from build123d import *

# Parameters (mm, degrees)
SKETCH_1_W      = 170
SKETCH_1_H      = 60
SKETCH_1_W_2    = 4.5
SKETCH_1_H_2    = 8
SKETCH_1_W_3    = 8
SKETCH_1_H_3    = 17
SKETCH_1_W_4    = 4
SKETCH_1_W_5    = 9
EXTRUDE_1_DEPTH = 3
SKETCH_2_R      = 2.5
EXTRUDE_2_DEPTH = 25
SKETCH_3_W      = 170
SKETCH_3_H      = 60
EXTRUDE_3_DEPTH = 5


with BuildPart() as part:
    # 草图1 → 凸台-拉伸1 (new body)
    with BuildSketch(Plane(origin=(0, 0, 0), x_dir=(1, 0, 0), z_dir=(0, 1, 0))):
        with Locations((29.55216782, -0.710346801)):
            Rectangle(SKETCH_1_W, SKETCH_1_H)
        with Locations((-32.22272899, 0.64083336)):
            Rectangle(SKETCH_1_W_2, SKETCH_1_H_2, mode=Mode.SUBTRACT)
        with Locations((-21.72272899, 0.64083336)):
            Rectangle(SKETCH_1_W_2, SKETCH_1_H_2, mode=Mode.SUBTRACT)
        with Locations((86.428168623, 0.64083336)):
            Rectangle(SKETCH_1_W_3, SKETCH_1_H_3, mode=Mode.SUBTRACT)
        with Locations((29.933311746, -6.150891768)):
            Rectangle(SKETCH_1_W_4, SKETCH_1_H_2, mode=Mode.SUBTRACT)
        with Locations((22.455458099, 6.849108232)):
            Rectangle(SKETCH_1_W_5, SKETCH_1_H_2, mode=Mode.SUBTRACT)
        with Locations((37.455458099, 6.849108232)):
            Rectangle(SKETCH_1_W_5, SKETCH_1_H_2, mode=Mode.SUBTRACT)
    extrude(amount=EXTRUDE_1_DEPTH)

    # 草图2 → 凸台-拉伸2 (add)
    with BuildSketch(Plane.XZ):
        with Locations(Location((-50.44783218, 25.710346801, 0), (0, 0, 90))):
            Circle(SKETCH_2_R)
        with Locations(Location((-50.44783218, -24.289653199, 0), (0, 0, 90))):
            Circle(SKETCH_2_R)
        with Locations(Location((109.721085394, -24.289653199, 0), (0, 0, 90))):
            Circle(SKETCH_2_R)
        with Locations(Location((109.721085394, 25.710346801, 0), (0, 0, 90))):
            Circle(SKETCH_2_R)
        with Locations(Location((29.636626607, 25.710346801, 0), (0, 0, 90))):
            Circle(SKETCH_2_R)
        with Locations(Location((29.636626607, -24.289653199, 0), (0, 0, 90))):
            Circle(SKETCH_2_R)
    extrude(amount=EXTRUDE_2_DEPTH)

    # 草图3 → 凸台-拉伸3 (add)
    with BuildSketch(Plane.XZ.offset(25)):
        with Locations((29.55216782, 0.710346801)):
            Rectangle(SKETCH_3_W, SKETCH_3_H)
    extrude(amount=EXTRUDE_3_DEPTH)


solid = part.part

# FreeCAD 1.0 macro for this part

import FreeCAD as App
import Part
import Sketcher
from FreeCAD import Vector

doc = App.newDocument("Part")
body = doc.addObject("PartDesign::Body", "Body")

# Sketch on XZ plane
sketch1 = body.newObject("Sketcher::SketchObject", "Sketch")
sketch1.AttachmentSupport = (doc.getObject("XZ_Plane"), [""])
sketch1.MapMode = "FlatFace"
sketch1.addGeometry([
    Part.LineSegment(Vector(-55.4, -29.3, 0), Vector(-55.4, 30.7, 0)),  # 0
    Part.LineSegment(Vector(-55.4, 30.7, 0), Vector(114.6, 30.7, 0)),  # 1
    Part.LineSegment(Vector(114.6, 30.7, 0), Vector(114.6, -29.3, 0)),  # 2
    Part.LineSegment(Vector(114.6, -29.3, 0), Vector(-55.4, -29.3, 0)),  # 3
    Part.LineSegment(Vector(31.9, 10.2, 0), Vector(27.9, 10.2, 0)),  # 4
    Part.LineSegment(Vector(27.9, 10.2, 0), Vector(27.9, 2.2, 0)),  # 5
    Part.LineSegment(Vector(27.9, 2.2, 0), Vector(31.9, 2.2, 0)),  # 6
    Part.LineSegment(Vector(31.9, 2.2, 0), Vector(31.9, 10.2, 0)),  # 7
    Part.LineSegment(Vector(-30, 3.4, 0), Vector(-34.5, 3.4, 0)),  # 8
    Part.LineSegment(Vector(-34.5, 3.4, 0), Vector(-34.5, -4.6, 0)),  # 9
    Part.LineSegment(Vector(-34.5, -4.6, 0), Vector(-30, -4.6, 0)),  # 10
    Part.LineSegment(Vector(-30, -4.6, 0), Vector(-30, 3.4, 0)),  # 11
    Part.LineSegment(Vector(-19.5, 3.4, 0), Vector(-24, 3.4, 0)),  # 12
    Part.LineSegment(Vector(-24, 3.4, 0), Vector(-24, -4.6, 0)),  # 13
    Part.LineSegment(Vector(-24, -4.6, 0), Vector(-19.5, -4.6, 0)),  # 14
    Part.LineSegment(Vector(-19.5, -4.6, 0), Vector(-19.5, 3.4, 0)),  # 15
    Part.LineSegment(Vector(27, -2.8, 0), Vector(18, -2.8, 0)),  # 16
    Part.LineSegment(Vector(18, -2.8, 0), Vector(18, -10.8, 0)),  # 17
    Part.LineSegment(Vector(18, -10.8, 0), Vector(27, -10.8, 0)),  # 18
    Part.LineSegment(Vector(27, -10.8, 0), Vector(27, -2.8, 0)),  # 19
    Part.LineSegment(Vector(90.4, 7.9, 0), Vector(82.4, 7.9, 0)),  # 20
    Part.LineSegment(Vector(82.4, 7.9, 0), Vector(82.4, -9.1, 0)),  # 21
    Part.LineSegment(Vector(82.4, -9.1, 0), Vector(90.4, -9.1, 0)),  # 22
    Part.LineSegment(Vector(90.4, -9.1, 0), Vector(90.4, 7.9, 0)),  # 23
    Part.LineSegment(Vector(42, -2.8, 0), Vector(33, -2.8, 0)),  # 24
    Part.LineSegment(Vector(33, -2.8, 0), Vector(33, -10.8, 0)),  # 25
    Part.LineSegment(Vector(33, -10.8, 0), Vector(42, -10.8, 0)),  # 26
    Part.LineSegment(Vector(42, -10.8, 0), Vector(42, -2.8, 0)),  # 27
], False)
sketch1.addConstraint([
    Sketcher.Constraint("Coincident", 0, 2, 1, 1),
    Sketcher.Constraint("Coincident", 1, 2, 2, 1),
    Sketcher.Constraint("Coincident", 2, 2, 3, 1),
    Sketcher.Constraint("Coincident", 3, 2, 0, 1),
    Sketcher.Constraint("Coincident", 4, 2, 5, 1),
    Sketcher.Constraint("Coincident", 5, 2, 6, 1),
    Sketcher.Constraint("Coincident", 6, 2, 7, 1),
    Sketcher.Constraint("Coincident", 7, 2, 4, 1),
    Sketcher.Constraint("Coincident", 8, 2, 9, 1),
    Sketcher.Constraint("Coincident", 9, 2, 10, 1),
    Sketcher.Constraint("Coincident", 10, 2, 11, 1),
    Sketcher.Constraint("Coincident", 11, 2, 8, 1),
    Sketcher.Constraint("Coincident", 12, 2, 13, 1),
    Sketcher.Constraint("Coincident", 13, 2, 14, 1),
    Sketcher.Constraint("Coincident", 14, 2, 15, 1),
    Sketcher.Constraint("Coincident", 15, 2, 12, 1),
    Sketcher.Constraint("Coincident", 16, 2, 17, 1),
    Sketcher.Constraint("Coincident", 17, 2, 18, 1),
    Sketcher.Constraint("Coincident", 18, 2, 19, 1),
    Sketcher.Constraint("Coincident", 19, 2, 16, 1),
    Sketcher.Constraint("Coincident", 20, 2, 21, 1),
    Sketcher.Constraint("Coincident", 21, 2, 22, 1),
    Sketcher.Constraint("Coincident", 22, 2, 23, 1),
    Sketcher.Constraint("Coincident", 23, 2, 20, 1),
    Sketcher.Constraint("Coincident", 24, 2, 25, 1),
    Sketcher.Constraint("Coincident", 25, 2, 26, 1),
    Sketcher.Constraint("Coincident", 26, 2, 27, 1),
    Sketcher.Constraint("Coincident", 27, 2, 24, 1),
    Sketcher.Constraint("Vertical", 0),
    Sketcher.Constraint("Horizontal", 1),
    Sketcher.Constraint("Vertical", 2),
    Sketcher.Constraint("Horizontal", 3),
    Sketcher.Constraint("Horizontal", 4),
    Sketcher.Constraint("Vertical", 5),
    Sketcher.Constraint("Horizontal", 6),
    Sketcher.Constraint("Vertical", 7),
    Sketcher.Constraint("Horizontal", 8),
    Sketcher.Constraint("Vertical", 9),
    Sketcher.Constraint("Horizontal", 10),
    Sketcher.Constraint("Vertical", 11),
    Sketcher.Constraint("Horizontal", 12),
    Sketcher.Constraint("Vertical", 13),
    Sketcher.Constraint("Horizontal", 14),
    Sketcher.Constraint("Vertical", 15),
    Sketcher.Constraint("Horizontal", 16),
    Sketcher.Constraint("Vertical", 17),
    Sketcher.Constraint("Horizontal", 18),
    Sketcher.Constraint("Vertical", 19),
    Sketcher.Constraint("Horizontal", 20),
    Sketcher.Constraint("Vertical", 21),
    Sketcher.Constraint("Horizontal", 22),
    Sketcher.Constraint("Vertical", 23),
    Sketcher.Constraint("Horizontal", 24),
    Sketcher.Constraint("Vertical", 25),
    Sketcher.Constraint("Horizontal", 26),
    Sketcher.Constraint("Vertical", 27),
    Sketcher.Constraint("Horizontal", 11, 2, 12, 2),
    Sketcher.Constraint("Horizontal", 10, 2, 13, 2),
    Sketcher.Constraint("Horizontal", 19, 2, 24, 2),
    Sketcher.Constraint("Horizontal", 18, 2, 25, 2),
    Sketcher.Constraint("Equal", 10, 12),
    Sketcher.Constraint("Equal", 18, 24),
    Sketcher.Constraint("Equal", 22, 5),
    Sketcher.Constraint("Equal", 7, 9),
    Sketcher.Constraint("Equal", 15, 17),
    Sketcher.Constraint("DistanceX", 1, 1, 1, 2, 170.0),
    Sketcher.Constraint("DistanceX", 4, 2, 4, 1, 4.0),
    Sketcher.Constraint("DistanceX", 16, 2, 16, 1, 9.0),
    Sketcher.Constraint("DistanceX", 20, 2, 20, 1, 8.0),
    Sketcher.Constraint("DistanceY", 0, 1, 0, 2, 60.0),
    Sketcher.Constraint("DistanceY", 21, 2, 21, 1, 17.0),
    Sketcher.Constraint("DistanceX", 8, 2, 8, 1, 4.5),
    Sketcher.Constraint("DistanceX", 11, 2, 12, 2, 6.0),
    Sketcher.Constraint("DistanceY", 16, 2, 5, 2, 5.0),
    Sketcher.Constraint("DistanceX", 19, 2, 24, 2, 6.0),
    Sketcher.Constraint("DistanceX", 20, 2, 1, 2, 32.123999),
    Sketcher.Constraint("DistanceX", -1, 1, 4, 2, 27.933312),
    Sketcher.Constraint("DistanceY", -1, 1, 4, 2, 10.150892),
    Sketcher.Constraint("DistanceX", 8, 2, -1, 1, 34.472729),
    Sketcher.Constraint("DistanceX", -1, 1, 16, 2, 17.955458),
    Sketcher.Constraint("DistanceX", -1, 1, 20, 2, 82.428169),
    Sketcher.Constraint("DistanceY", 8, 2, 0, 2, 27.35118),
    Sketcher.Constraint("DistanceY", 20, 2, 1, 2, 22.85118),
    Sketcher.Constraint("DistanceY", -1, 1, 0, 2, 30.710347),
])
pad1 = body.newObject("PartDesign::Pad", "Pad")
pad1.Profile = sketch1
pad1.Length = 3
pad1.Reversed = True

# Sketch on XZ plane
sketch2 = body.newObject("Sketcher::SketchObject", "Sketch001")
sketch2.AttachmentSupport = (doc.getObject("XZ_Plane"), [""])
sketch2.MapMode = "FlatFace"
sketch2.addGeometry([
    Part.Circle(Vector(-50.4, 25.7, 0), Vector(0, 0, 1), 2.5),  # 0
    Part.Circle(Vector(-50.4, -24.3, 0), Vector(0, 0, 1), 2.5),  # 1
    Part.Circle(Vector(109.7, -24.3, 0), Vector(0, 0, 1), 2.5),  # 2
    Part.Circle(Vector(109.7, 25.7, 0), Vector(0, 0, 1), 2.5),  # 3
    Part.Circle(Vector(29.6, 25.7, 0), Vector(0, 0, 1), 2.5),  # 4
    Part.Circle(Vector(29.6, -24.3, 0), Vector(0, 0, 1), 2.5),  # 5
], False)
sketch2.addConstraint([
    Sketcher.Constraint("Equal", 0, 1),
    Sketcher.Constraint("Equal", 1, 2),
    Sketcher.Constraint("Equal", 2, 3),
    Sketcher.Constraint("Equal", 3, 4),
    Sketcher.Constraint("Equal", 4, 5),
    Sketcher.Constraint("Horizontal", 1, 3, 2, 3),
    Sketcher.Constraint("Horizontal", 0, 3, 3, 3),
    Sketcher.Constraint("Horizontal", 3, 3, 4, 3),
    Sketcher.Constraint("Horizontal", 2, 3, 5, 3),
    Sketcher.Constraint("Vertical", 0, 3, 1, 3),
    Sketcher.Constraint("Vertical", 2, 3, 3, 3),
    Sketcher.Constraint("Vertical", 4, 3, 5, 3),
    Sketcher.Constraint("Diameter", 0, 5.0),
    Sketcher.Constraint("DistanceY", 1, 3, 0, 3, 50.0),
    Sketcher.Constraint("DistanceX", 0, 3, 4, 3, 80.084459),
    Sketcher.Constraint("DistanceX", 4, 3, 3, 3, 80.084459),
    Sketcher.Constraint("DistanceX", 0, 3, -1, 1, 50.447832),
    Sketcher.Constraint("DistanceY", -1, 1, 0, 3, 25.710347),
])
pad2 = body.newObject("PartDesign::Pad", "Pad001")
pad2.Profile = sketch2
pad2.Length = 25

# Sketch on XZ plane
sketch3 = body.newObject("Sketcher::SketchObject", "Sketch002")
sketch3.AttachmentSupport = (doc.getObject("XZ_Plane"), [""])
sketch3.MapMode = "FlatFace"
sketch3.AttachmentOffset = App.Placement(Vector(0, 0, 25), App.Rotation())
sketch3.addGeometry([
    Part.LineSegment(Vector(-55, 31, 0), Vector(-55, -29, 0)),
    Part.LineSegment(Vector(-55, -29, 0), Vector(115, -29, 0)),
    Part.LineSegment(Vector(115, -29, 0), Vector(115, 31, 0)),
    Part.LineSegment(Vector(115, 31, 0), Vector(-55, 31, 0)),
], False)
sketch3.addConstraint([
    Sketcher.Constraint("Coincident", 0, 2, 1, 1),
    Sketcher.Constraint("Coincident", 1, 2, 2, 1),
    Sketcher.Constraint("Coincident", 2, 2, 3, 1),
    Sketcher.Constraint("Coincident", 3, 2, 0, 1),
    Sketcher.Constraint("Vertical", 0),
    Sketcher.Constraint("Horizontal", 1),
    Sketcher.Constraint("Vertical", 2),
    Sketcher.Constraint("Horizontal", 3),
    Sketcher.Constraint("DistanceX", 1, 1, 1, 2, 170.0),
    Sketcher.Constraint("DistanceY", 0, 2, 0, 1, 60.0),
    Sketcher.Constraint("DistanceX", 0, 2, -1, 1, 55.447832),
    Sketcher.Constraint("DistanceY", 0, 2, -1, 1, 29.289653),
])
pad3 = body.newObject("PartDesign::Pad", "Pad002")
pad3.Profile = sketch3
pad3.Length = 5

doc.recompute()
